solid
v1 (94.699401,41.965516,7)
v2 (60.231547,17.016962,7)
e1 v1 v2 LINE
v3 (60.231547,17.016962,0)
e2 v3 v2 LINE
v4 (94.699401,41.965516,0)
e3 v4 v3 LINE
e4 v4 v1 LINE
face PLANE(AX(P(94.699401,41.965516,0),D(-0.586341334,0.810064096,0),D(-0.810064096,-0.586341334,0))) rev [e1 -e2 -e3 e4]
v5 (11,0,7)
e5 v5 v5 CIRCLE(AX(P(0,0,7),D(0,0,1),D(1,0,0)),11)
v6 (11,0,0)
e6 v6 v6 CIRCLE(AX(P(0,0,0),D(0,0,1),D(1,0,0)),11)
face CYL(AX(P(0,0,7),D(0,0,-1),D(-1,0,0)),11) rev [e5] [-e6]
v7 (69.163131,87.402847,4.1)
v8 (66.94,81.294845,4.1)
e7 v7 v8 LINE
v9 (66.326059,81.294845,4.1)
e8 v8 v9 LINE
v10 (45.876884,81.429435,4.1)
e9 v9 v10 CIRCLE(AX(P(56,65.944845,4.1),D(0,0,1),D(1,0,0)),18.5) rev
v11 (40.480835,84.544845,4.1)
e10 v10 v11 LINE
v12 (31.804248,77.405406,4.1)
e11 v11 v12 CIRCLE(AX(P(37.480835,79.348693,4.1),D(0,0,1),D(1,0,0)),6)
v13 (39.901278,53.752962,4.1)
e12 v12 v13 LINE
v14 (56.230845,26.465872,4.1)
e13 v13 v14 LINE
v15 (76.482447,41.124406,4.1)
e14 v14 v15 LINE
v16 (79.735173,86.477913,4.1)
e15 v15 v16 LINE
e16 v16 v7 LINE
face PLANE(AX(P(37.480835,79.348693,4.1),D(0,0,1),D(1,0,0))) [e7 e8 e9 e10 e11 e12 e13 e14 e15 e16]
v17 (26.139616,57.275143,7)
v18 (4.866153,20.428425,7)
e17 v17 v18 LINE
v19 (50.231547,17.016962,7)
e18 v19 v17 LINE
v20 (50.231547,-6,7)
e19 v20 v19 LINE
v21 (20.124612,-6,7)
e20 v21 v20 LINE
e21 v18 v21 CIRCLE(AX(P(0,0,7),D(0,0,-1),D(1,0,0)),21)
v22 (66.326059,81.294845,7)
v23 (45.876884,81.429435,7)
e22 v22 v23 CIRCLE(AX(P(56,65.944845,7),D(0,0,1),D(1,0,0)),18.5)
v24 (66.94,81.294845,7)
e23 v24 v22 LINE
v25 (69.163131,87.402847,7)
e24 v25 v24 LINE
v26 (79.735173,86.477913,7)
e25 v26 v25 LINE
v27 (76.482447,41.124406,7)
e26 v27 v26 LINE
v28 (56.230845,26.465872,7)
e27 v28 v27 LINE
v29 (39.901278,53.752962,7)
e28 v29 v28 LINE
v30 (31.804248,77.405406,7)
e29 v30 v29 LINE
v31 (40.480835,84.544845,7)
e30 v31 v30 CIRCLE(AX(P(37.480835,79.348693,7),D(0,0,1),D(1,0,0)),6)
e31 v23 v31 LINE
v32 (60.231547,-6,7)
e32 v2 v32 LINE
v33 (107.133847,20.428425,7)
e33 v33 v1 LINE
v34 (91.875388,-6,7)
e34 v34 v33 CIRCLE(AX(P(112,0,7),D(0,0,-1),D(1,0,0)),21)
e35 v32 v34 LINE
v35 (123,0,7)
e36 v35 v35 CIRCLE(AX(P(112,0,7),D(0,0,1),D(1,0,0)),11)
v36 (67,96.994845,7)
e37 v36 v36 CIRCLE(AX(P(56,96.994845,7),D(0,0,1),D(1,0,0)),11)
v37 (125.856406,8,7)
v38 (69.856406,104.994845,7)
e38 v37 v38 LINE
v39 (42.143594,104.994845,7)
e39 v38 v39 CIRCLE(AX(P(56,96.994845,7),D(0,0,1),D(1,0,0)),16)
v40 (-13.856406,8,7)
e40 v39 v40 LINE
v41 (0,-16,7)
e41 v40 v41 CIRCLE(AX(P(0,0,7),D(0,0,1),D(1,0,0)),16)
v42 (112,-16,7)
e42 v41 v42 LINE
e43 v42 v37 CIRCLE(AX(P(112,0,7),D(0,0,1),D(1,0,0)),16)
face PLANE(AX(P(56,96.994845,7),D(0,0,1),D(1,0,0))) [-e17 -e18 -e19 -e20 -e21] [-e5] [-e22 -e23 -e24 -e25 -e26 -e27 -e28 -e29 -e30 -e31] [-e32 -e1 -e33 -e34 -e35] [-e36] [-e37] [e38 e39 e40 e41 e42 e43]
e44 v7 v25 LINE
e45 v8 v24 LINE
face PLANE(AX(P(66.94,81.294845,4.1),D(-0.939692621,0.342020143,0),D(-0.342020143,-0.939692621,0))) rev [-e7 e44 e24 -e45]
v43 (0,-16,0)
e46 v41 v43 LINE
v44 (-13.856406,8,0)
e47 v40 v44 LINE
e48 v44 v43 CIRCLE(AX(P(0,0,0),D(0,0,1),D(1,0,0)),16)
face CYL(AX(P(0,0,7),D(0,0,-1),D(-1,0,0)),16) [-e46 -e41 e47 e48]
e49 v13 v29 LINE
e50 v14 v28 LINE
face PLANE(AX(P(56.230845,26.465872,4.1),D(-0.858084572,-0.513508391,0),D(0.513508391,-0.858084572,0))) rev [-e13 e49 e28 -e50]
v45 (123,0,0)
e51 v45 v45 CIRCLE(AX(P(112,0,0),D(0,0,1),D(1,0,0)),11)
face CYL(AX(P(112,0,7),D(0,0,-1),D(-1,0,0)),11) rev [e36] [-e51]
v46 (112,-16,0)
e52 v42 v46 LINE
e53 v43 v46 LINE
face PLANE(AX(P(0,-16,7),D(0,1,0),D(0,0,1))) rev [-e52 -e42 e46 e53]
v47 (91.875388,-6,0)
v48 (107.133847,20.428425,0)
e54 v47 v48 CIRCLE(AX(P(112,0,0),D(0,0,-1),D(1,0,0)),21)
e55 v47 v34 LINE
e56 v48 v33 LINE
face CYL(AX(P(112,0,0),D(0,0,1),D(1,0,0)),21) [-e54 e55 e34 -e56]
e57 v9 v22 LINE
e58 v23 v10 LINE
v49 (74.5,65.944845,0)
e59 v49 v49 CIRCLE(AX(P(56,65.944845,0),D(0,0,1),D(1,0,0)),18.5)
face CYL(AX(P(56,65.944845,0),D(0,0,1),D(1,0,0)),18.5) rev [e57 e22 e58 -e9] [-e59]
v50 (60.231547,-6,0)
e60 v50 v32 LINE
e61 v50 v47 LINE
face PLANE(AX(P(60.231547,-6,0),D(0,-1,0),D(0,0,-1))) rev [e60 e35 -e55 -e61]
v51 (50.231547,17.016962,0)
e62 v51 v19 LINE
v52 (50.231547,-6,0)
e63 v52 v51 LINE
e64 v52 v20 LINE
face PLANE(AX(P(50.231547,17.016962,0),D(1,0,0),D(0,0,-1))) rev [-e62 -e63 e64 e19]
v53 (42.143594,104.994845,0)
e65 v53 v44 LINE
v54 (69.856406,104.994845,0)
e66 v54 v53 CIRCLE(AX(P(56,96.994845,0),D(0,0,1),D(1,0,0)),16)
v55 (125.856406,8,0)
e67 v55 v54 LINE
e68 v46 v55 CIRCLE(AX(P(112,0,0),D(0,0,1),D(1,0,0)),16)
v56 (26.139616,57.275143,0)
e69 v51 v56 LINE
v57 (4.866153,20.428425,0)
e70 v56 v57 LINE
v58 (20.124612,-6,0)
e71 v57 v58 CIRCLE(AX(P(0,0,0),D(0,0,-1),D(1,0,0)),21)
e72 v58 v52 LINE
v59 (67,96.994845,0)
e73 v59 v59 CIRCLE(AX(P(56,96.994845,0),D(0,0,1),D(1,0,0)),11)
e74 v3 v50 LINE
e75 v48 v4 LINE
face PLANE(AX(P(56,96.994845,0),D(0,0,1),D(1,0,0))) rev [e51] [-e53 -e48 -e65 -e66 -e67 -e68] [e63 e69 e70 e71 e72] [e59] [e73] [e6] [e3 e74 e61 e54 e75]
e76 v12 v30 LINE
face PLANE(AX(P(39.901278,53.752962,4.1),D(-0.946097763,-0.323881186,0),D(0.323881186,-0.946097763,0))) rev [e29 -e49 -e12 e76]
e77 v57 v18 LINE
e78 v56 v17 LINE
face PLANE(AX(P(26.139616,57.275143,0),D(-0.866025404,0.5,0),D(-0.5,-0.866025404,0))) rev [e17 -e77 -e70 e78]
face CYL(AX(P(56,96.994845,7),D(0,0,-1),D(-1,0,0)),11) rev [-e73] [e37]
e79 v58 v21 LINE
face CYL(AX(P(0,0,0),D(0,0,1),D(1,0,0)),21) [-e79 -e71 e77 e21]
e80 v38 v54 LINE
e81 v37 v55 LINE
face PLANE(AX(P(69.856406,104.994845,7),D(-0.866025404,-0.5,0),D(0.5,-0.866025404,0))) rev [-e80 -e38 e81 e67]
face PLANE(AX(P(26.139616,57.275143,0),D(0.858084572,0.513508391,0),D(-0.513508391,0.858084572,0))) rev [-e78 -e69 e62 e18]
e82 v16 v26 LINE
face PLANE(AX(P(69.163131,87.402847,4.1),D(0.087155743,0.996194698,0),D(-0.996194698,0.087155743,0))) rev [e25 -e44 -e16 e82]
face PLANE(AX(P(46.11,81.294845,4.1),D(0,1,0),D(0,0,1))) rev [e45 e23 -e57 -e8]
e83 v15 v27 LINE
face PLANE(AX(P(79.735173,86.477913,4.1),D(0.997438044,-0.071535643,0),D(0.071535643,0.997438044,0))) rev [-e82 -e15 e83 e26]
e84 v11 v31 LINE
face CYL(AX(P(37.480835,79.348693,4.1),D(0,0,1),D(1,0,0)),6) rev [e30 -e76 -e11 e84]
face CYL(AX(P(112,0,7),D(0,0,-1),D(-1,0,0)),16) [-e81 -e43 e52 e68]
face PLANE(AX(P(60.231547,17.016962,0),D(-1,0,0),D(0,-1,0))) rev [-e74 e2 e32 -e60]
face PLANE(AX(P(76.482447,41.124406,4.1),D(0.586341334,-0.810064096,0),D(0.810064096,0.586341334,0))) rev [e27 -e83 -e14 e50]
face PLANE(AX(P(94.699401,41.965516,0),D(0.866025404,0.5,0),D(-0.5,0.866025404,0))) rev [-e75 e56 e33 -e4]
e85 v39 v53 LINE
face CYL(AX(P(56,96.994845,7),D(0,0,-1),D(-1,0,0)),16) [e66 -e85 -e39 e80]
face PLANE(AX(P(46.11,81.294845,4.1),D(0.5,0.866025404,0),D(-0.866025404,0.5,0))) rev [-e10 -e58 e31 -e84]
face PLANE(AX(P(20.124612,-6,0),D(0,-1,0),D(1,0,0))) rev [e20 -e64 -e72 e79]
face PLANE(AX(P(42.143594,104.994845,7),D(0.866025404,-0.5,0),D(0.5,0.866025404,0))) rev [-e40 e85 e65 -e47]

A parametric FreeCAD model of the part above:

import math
import FreeCAD as App
import Part
import Sketcher
Q = App.Units.Quantity

doc = App.newDocument("Part")
body = doc.addObject("PartDesign::Body", "Body")

sketch1 = body.newObject("Sketcher::SketchObject", "Sketch")
sketch1.AttachmentSupport = (doc.getObject("XY_Plane"), [""])
sketch1.MapMode = "FlatFace"
sketch1.addGeometry(Part.LineSegment(App.Vector(42, 105, 0), App.Vector(-14, 8, 0)), False)
sketch1.addGeometry(Part.ArcOfCircle(Part.Circle(App.Vector(0, 0, 0), App.Vector(0, 0, 1), 16), math.radians(150), math.radians(270)), False)
sketch1.addGeometry(Part.LineSegment(App.Vector(0, -16, 0), App.Vector(112, -16, 0)), False)
sketch1.addGeometry(Part.ArcOfCircle(Part.Circle(App.Vector(112, 0, 0), App.Vector(0, 0, 1), 16), math.radians(-90), math.radians(30)), False)
sketch1.addGeometry(Part.LineSegment(App.Vector(126, 8, 0), App.Vector(70, 105, 0)), False)
sketch1.addGeometry(Part.ArcOfCircle(Part.Circle(App.Vector(56, 97, 0), App.Vector(0, 0, 1), 16), math.radians(30), math.radians(150)), False)
sketch1.addGeometry(Part.Circle(App.Vector(0, 0, 0), App.Vector(0, 0, 1), 11), False)
sketch1.addGeometry(Part.Circle(App.Vector(112, 0, 0), App.Vector(0, 0, 1), 11), False)
sketch1.addGeometry(Part.Circle(App.Vector(56, 97, 0), App.Vector(0, 0, 1), 11), False)
sketch1.addConstraint(Sketcher.Constraint("Tangent", 0, 2, 1, 1))
sketch1.addConstraint(Sketcher.Constraint("Tangent", 1, 2, 2, 1))
sketch1.addConstraint(Sketcher.Constraint("Tangent", 2, 2, 3, 1))
sketch1.addConstraint(Sketcher.Constraint("Tangent", 3, 2, 4, 1))
sketch1.addConstraint(Sketcher.Constraint("Tangent", 4, 2, 5, 1))
sketch1.addConstraint(Sketcher.Constraint("Tangent", 5, 2, 0, 1))
sketch1.addConstraint(Sketcher.Constraint("Horizontal", 2))
sketch1.addConstraint(Sketcher.Constraint("Coincident", 1, 3, -1, 1))
sketch1.addConstraint(Sketcher.Constraint("Coincident", 6, 3, -1, 1))
sketch1.addConstraint(Sketcher.Constraint("Coincident", 7, 3, 3, 3))
sketch1.addConstraint(Sketcher.Constraint("Coincident", 8, 3, 5, 3))
sketch1.addConstraint(Sketcher.Constraint("Equal", 1, 3))
sketch1.addConstraint(Sketcher.Constraint("Equal", 3, 5))
sketch1.addConstraint(Sketcher.Constraint("Equal", 6, 7))
sketch1.addConstraint(Sketcher.Constraint("Equal", 7, 8))
sketch1.addConstraint(Sketcher.Constraint("Horizontal", 0, 2, 3, 2))
sketch1.addConstraint(Sketcher.Constraint("Diameter", 6, Q("22 mm")))
sketch1.addConstraint(Sketcher.Constraint("Radius", 1, Q("16 mm")))
sketch1.addConstraint(Sketcher.Constraint("DistanceX", 2, 1, 2, 2, Q("112 mm")))
sketch1.addConstraint(Sketcher.Constraint("Angle", 0, Q("-120 deg")))
pad1 = body.newObject("PartDesign::Pad", "Pad")
pad1.Profile = sketch1
pad1.Length = 7

sketch2 = body.newObject("Sketcher::SketchObject", "Sketch001")
sketch2.AttachmentSupport = (doc.getObject("XY_Plane"), [""])
sketch2.MapMode = "FlatFace"
sketch2.AttachmentOffset = App.Placement(App.Vector(0, 0, 7), App.Rotation())
sketch2.addGeometry(Part.Circle(App.Vector(56, 66, 0), App.Vector(0, 0, 1), 18), False)
sketch2.addConstraint(Sketcher.Constraint("Diameter", 0, Q("37 mm")))
sketch2.addConstraint(Sketcher.Constraint("DistanceX", -1, 1, 0, 3, Q("56 mm")))
sketch2.addConstraint(Sketcher.Constraint("DistanceY", -1, 1, 0, 3, Q("65.944845 mm")))
pocket1 = body.newObject("PartDesign::Pocket", "Pocket")
pocket1.Profile = sketch2
pocket1.Type = "ThroughAll"

sketch3 = body.newObject("Sketcher::SketchObject", "Sketch002")
sketch3.AttachmentSupport = (doc.getObject("XY_Plane"), [""])
sketch3.MapMode = "FlatFace"
sketch3.AttachmentOffset = App.Placement(App.Vector(0, 0, 7), App.Rotation())
sketch3.addGeometry(Part.LineSegment(App.Vector(66.94, 81.294845, 0), App.Vector(46.11, 81.294845, 0)), False)
sketch3.addGeometry(Part.LineSegment(App.Vector(46.11, 81.294845, 0), App.Vector(40.480835, 84.544845, 0)), False)
sketch3.addGeometry(Part.ArcOfCircle(Part.Circle(App.Vector(37.480835, 79.348693, 0), App.Vector(0, 0, 1), 6), math.radians(60), math.radians(198.897806)), False)
sketch3.addGeometry(Part.LineSegment(App.Vector(31.804248, 77.405406, 0), App.Vector(39.901278, 53.752962, 0)), False)
sketch3.addGeometry(Part.LineSegment(App.Vector(39.901278, 53.752962, 0), App.Vector(56.230845, 26.465872, 0)), False)
sketch3.addGeometry(Part.LineSegment(App.Vector(56.230845, 26.465872, 0), App.Vector(76.482447, 41.124406, 0)), False)
sketch3.addGeometry(Part.LineSegment(App.Vector(76.482447, 41.124406, 0), App.Vector(79.735173, 86.477913, 0)), False)
sketch3.addGeometry(Part.LineSegment(App.Vector(79.735173, 86.477913, 0), App.Vector(69.163131, 87.402847, 0)), False)
sketch3.addGeometry(Part.LineSegment(App.Vector(69.163131, 87.402847, 0), App.Vector(66.94, 81.294845, 0)), False)
sketch3.addConstraint(Sketcher.Constraint("Coincident", 0, 2, 1, 1))
sketch3.addConstraint(Sketcher.Constraint("Coincident", 1, 2, 2, 1))
sketch3.addConstraint(Sketcher.Constraint("Coincident", 2, 2, 3, 1))
sketch3.addConstraint(Sketcher.Constraint("Coincident", 3, 2, 4, 1))
sketch3.addConstraint(Sketcher.Constraint("Coincident", 4, 2, 5, 1))
sketch3.addConstraint(Sketcher.Constraint("Coincident", 5, 2, 6, 1))
sketch3.addConstraint(Sketcher.Constraint("Coincident", 6, 2, 7, 1))
sketch3.addConstraint(Sketcher.Constraint("Coincident", 7, 2, 8, 1))
sketch3.addConstraint(Sketcher.Constraint("Coincident", 8, 2, 0, 1))
sketch3.addConstraint(Sketcher.Constraint("Horizontal", 0))
sketch3.addConstraint(Sketcher.Constraint("Radius", 2, Q("6 mm")))
sketch3.addConstraint(Sketcher.Constraint("Distance", 3, Q("25 mm")))
sketch3.addConstraint(Sketcher.Constraint("Distance", 5, Q("25 mm")))
sketch3.addConstraint(Sketcher.Constraint("DistanceX", 2, 3, 1, 2, Q("3 mm")))
sketch3.addConstraint(Sketcher.Constraint("Distance", 1, Q("6.5 mm")))
sketch3.addConstraint(Sketcher.Constraint("Distance", 4, Q("31.8 mm")))
sketch3.addConstraint(Sketcher.Constraint("Distance", 8, Q("6.5 mm")))
sketch3.addConstraint(Sketcher.Constraint("DistanceX", 0, 2, 0, 1, Q("20.83 mm")))
sketch3.addConstraint(Sketcher.Constraint("Distance", 6, Q("45.47 mm")))
sketch3.addConstraint(Sketcher.Constraint("DistanceX", -1, 1, 0, 2, Q("46.11 mm")))
sketch3.addConstraint(Sketcher.Constraint("DistanceY", 0, 2, 1, 2, Q("3.25 mm")))
sketch3.addConstraint(Sketcher.Constraint("DistanceX", -1, 1, 2, 2, Q("31.804248 mm")))
sketch3.addConstraint(Sketcher.Constraint("DistanceY", -1, 1, 3, 2, Q("53.752962 mm")))
sketch3.addConstraint(Sketcher.Constraint("DistanceX", -1, 1, 7, 2, Q("69.163131 mm")))
sketch3.addConstraint(Sketcher.Constraint("DistanceX", 2, 2, 3, 2, Q("8.09703 mm")))
sketch3.addConstraint(Sketcher.Constraint("DistanceY", 4, 2, 3, 2, Q("27.287089 mm")))
sketch3.addConstraint(Sketcher.Constraint("DistanceX", 3, 2, 5, 2, Q("36.581169 mm")))
sketch3.addConstraint(Sketcher.Constraint("DistanceY", 0, 2, 6, 2, Q("5.183068 mm")))
pocket2 = body.newObject("PartDesign::Pocket", "Pocket001")
pocket2.Profile = sketch3
pocket2.Length = 2.9

sketch4 = body.newObject("Sketcher::SketchObject", "Sketch003")
sketch4.AttachmentSupport = (doc.getObject("XY_Plane"), [""])
sketch4.MapMode = "FlatFace"
sketch4.AttachmentOffset = App.Placement(App.Vector(0, 0, 7), App.Rotation())
sketch4.addGeometry(Part.LineSegment(App.Vector(26, 57, 0), App.Vector(5, 20, 0)), False)
sketch4.addGeometry(Part.ArcOfCircle(Part.Circle(App.Vector(0, 0, 0), App.Vector(0, 0, 1), 21), math.radians(-17), math.radians(77)), False)
sketch4.addGeometry(Part.LineSegment(App.Vector(20, -6, 0), App.Vector(50, -6, 0)), False)
sketch4.addGeometry(Part.LineSegment(App.Vector(50, -6, 0), App.Vector(50, 17, 0)), False)
sketch4.addGeometry(Part.LineSegment(App.Vector(50, 17, 0), App.Vector(26, 57, 0)), False)
sketch4.addGeometry(Part.LineSegment(App.Vector(60, 17, 0), App.Vector(60, -6, 0)), False)
sketch4.addGeometry(Part.LineSegment(App.Vector(60, -6, 0), App.Vector(92, -6, 0)), False)
sketch4.addGeometry(Part.ArcOfCircle(Part.Circle(App.Vector(112, 0, 0), App.Vector(0, 0, 1), 21), math.radians(103), math.radians(197)), False)
sketch4.addGeometry(Part.LineSegment(App.Vector(107, 20, 0), App.Vector(95, 42, 0)), False)
sketch4.addGeometry(Part.LineSegment(App.Vector(95, 42, 0), App.Vector(60, 17, 0)), False)
sketch4.addConstraint(Sketcher.Constraint("Coincident", 0, 2, 1, 2))
sketch4.addConstraint(Sketcher.Constraint("Coincident", 1, 1, 2, 1))
sketch4.addConstraint(Sketcher.Constraint("Coincident", 2, 2, 3, 1))
sketch4.addConstraint(Sketcher.Constraint("Coincident", 3, 2, 4, 1))
sketch4.addConstraint(Sketcher.Constraint("Coincident", 4, 2, 0, 1))
sketch4.addConstraint(Sketcher.Constraint("Coincident", 5, 2, 6, 1))
sketch4.addConstraint(Sketcher.Constraint("Coincident", 6, 2, 7, 2))
sketch4.addConstraint(Sketcher.Constraint("Coincident", 7, 1, 8, 1))
sketch4.addConstraint(Sketcher.Constraint("Coincident", 8, 2, 9, 1))
sketch4.addConstraint(Sketcher.Constraint("Coincident", 9, 2, 5, 1))
sketch4.addConstraint(Sketcher.Constraint("Horizontal", 2))
sketch4.addConstraint(Sketcher.Constraint("Vertical", 3))
sketch4.addConstraint(Sketcher.Constraint("Vertical", 5))
sketch4.addConstraint(Sketcher.Constraint("Horizontal", 6))
sketch4.addConstraint(Sketcher.Constraint("Coincident", 1, 3, -1, 1))
sketch4.addConstraint(Sketcher.Constraint("Equal", 1, 7))
sketch4.addConstraint(Sketcher.Constraint("PointOnObject", 7, 3, -1))
sketch4.addConstraint(Sketcher.Constraint("Horizontal", 2, 2, 5, 2))
sketch4.addConstraint(Sketcher.Constraint("Horizontal", 0, 2, 7, 1))
sketch4.addConstraint(Sketcher.Constraint("Horizontal", 3, 2, 9, 2))
sketch4.addConstraint(Sketcher.Constraint("Radius", 1, Q("21 mm")))
sketch4.addConstraint(Sketcher.Constraint("Angle", 0, Q("-120 deg")))
sketch4.addConstraint(Sketcher.Constraint("Angle", 8, Q("120 deg")))
sketch4.addConstraint(Sketcher.Constraint("DistanceX", -1, 1, 7, 3, Q("112 mm")))
sketch4.addConstraint(Sketcher.Constraint("DistanceY", 1, 1, -1, 1, Q("6 mm")))
sketch4.addConstraint(Sketcher.Constraint("DistanceX", 2, 2, 5, 2, Q("10 mm")))
sketch4.addConstraint(Sketcher.Constraint("DistanceX", 6, 1, 6, 2, Q("31.643842 mm")))
sketch4.addConstraint(Sketcher.Constraint("DistanceY", 3, 1, 3, 2, Q("23.016962 mm")))
sketch4.addConstraint(Sketcher.Constraint("DistanceX", -1, 1, 8, 2, Q("94.699401 mm")))
sketch4.addConstraint(Sketcher.Constraint("DistanceX", 5, 2, 7, 1, Q("46.9023 mm")))
sketch4.addConstraint(Sketcher.Constraint("DistanceY", 0, 2, 4, 2, Q("36.846718 mm")))
pocket3 = body.newObject("PartDesign::Pocket", "Pocket002")
pocket3.Profile = sketch4
pocket3.Type = "ThroughAll"

doc.recompute()
